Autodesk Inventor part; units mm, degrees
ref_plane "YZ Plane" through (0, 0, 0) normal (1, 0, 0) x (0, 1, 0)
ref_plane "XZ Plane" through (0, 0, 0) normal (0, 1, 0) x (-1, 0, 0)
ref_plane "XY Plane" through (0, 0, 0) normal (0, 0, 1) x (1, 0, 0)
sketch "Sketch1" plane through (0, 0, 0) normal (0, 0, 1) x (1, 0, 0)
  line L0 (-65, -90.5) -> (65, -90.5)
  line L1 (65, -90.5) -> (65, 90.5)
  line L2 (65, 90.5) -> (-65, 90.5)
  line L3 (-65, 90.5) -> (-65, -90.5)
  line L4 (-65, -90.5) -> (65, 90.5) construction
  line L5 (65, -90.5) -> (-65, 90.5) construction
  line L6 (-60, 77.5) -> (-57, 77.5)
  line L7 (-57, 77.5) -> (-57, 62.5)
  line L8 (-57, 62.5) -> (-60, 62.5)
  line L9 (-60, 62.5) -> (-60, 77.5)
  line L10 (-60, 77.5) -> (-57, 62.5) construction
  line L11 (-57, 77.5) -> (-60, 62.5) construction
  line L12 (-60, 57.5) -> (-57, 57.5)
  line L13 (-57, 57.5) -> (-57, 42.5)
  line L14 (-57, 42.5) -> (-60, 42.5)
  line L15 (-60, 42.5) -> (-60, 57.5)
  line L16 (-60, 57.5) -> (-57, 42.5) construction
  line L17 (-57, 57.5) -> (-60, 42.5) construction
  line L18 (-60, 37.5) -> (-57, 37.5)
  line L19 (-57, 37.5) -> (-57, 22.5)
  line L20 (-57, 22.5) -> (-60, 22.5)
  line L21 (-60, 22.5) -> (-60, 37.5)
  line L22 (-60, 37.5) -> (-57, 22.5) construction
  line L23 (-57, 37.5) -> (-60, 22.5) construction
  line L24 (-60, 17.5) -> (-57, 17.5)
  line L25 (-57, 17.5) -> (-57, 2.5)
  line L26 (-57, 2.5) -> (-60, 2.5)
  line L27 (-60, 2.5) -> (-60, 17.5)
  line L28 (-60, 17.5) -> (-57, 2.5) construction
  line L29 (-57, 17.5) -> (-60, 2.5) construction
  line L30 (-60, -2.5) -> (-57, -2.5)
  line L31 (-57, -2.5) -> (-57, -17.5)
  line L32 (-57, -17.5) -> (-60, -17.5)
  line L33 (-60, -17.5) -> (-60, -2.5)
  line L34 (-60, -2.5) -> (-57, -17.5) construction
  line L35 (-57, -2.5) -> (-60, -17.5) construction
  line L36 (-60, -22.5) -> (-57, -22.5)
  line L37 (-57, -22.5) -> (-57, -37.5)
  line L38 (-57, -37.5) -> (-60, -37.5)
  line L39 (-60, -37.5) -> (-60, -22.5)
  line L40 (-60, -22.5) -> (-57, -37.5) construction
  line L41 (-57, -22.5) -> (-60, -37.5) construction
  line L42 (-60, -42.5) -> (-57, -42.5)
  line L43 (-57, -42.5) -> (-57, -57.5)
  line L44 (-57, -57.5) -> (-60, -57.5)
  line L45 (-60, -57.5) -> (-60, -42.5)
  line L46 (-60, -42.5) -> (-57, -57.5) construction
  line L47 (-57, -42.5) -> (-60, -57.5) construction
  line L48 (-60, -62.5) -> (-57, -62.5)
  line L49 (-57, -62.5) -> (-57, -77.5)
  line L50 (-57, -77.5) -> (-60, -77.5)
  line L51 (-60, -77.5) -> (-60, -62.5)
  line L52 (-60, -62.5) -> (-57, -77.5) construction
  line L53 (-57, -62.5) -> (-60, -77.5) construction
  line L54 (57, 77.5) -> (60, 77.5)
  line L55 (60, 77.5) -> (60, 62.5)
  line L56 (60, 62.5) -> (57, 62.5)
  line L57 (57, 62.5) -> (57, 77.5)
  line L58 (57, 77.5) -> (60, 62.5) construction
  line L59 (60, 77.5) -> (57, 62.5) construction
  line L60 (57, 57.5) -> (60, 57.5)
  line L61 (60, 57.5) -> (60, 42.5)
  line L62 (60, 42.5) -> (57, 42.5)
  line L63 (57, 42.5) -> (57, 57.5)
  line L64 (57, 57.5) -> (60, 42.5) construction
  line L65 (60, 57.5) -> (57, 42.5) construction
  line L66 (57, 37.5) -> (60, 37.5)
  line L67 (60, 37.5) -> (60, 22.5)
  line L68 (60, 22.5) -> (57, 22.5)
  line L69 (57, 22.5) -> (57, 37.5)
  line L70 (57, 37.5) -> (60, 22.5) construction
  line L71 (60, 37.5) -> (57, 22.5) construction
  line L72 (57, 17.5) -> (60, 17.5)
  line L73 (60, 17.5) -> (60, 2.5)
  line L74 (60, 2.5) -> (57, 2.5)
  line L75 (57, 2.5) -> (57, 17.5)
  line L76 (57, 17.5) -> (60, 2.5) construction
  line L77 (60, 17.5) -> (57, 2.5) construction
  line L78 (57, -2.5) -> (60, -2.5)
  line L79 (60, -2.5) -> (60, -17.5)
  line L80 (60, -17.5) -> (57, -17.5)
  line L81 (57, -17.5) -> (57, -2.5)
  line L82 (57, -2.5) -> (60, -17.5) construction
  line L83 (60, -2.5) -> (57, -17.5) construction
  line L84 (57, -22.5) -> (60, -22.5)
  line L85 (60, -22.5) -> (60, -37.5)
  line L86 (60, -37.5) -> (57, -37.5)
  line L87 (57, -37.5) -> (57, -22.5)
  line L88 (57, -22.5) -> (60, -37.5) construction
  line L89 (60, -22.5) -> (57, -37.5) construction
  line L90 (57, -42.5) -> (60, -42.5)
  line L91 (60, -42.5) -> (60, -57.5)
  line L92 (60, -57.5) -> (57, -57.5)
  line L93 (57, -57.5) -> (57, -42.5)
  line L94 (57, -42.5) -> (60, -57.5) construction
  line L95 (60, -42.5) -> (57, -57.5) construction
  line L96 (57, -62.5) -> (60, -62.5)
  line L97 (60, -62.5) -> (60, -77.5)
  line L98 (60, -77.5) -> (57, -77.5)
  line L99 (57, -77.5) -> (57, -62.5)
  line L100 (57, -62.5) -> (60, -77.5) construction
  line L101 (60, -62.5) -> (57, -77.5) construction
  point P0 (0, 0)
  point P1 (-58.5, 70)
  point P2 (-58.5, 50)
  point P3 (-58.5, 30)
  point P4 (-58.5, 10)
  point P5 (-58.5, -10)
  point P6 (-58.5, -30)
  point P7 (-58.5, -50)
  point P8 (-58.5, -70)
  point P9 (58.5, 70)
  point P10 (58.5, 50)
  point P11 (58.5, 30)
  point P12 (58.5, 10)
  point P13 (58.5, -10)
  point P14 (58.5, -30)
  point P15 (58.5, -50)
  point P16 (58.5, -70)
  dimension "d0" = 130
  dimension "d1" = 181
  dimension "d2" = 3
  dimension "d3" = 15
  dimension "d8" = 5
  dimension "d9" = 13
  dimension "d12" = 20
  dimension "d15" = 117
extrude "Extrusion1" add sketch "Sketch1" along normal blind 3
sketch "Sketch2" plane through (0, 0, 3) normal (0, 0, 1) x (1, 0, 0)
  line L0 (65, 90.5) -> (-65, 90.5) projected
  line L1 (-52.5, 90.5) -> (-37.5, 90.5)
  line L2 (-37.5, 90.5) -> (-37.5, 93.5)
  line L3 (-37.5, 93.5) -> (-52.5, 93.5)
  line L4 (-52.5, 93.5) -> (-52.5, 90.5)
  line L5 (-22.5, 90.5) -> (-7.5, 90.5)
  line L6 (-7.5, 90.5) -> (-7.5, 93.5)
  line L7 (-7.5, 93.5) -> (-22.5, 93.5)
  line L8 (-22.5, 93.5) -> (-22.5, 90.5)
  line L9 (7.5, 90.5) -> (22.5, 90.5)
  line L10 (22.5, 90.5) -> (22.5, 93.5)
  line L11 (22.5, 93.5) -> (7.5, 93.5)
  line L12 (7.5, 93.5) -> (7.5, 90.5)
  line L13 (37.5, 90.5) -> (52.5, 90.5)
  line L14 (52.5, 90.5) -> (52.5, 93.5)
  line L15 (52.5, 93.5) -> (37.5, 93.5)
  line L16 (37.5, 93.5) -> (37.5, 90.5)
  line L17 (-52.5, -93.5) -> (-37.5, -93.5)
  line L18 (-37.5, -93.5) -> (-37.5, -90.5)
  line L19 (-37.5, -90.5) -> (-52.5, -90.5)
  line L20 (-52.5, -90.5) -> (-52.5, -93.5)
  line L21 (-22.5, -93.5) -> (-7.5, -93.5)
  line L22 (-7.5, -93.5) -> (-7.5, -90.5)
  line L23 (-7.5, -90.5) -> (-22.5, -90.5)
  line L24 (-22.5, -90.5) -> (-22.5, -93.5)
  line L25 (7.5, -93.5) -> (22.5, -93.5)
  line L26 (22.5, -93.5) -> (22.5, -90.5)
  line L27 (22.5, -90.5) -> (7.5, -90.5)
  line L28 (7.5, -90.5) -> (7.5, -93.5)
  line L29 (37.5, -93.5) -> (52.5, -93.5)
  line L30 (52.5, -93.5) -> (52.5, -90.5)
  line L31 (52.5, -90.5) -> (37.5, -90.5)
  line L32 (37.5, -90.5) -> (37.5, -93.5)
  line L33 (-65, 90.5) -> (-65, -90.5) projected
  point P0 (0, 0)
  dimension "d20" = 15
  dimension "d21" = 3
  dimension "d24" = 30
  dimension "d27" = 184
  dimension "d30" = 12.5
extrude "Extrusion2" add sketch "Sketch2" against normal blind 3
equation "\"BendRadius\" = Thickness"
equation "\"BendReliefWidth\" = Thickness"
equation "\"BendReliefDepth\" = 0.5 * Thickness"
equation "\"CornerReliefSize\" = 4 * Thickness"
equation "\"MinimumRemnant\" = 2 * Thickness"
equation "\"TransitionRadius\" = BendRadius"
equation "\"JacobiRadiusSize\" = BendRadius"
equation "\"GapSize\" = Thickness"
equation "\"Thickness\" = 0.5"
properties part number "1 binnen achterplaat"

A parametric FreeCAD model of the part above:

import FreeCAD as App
import Part
import Sketcher

V = App.Vector
Q = App.Units.Quantity


def add_polygon(sketch, points):
    """Adds a closed chain of lines whose ends are joined by coincident constraints."""
    first, n = sketch.GeometryCount, len(points)
    for a, b in zip(points, points[1:] + points[:1]):
        sketch.addGeometry(Part.LineSegment(App.Vector(*a, 0), App.Vector(*b, 0)), False)
    for i in range(n):
        sketch.addConstraint(Sketcher.Constraint("Coincident", first + i, 2, first + (i + 1) % n, 1))

doc = App.newDocument("Part")
body = doc.addObject("PartDesign::Body", "Body")

# Sketch on XY plane
sketch1 = body.newObject("Sketcher::SketchObject", "Sketch")
sketch1.AttachmentSupport = (doc.getObject("XY_Plane"), [""])
sketch1.MapMode = "FlatFace"
add_polygon(sketch1, [(-65, 90.5), (-65, -90.5), (65, -90.5), (65, 90.5)])  # lines 0-3
add_polygon(sketch1, [(-60, -77.5), (-60, -62.5), (-57, -62.5), (-57, -77.5)])  # lines 4-7
add_polygon(sketch1, [(-60, -57.5), (-60, -42.5), (-57, -42.5), (-57, -57.5)])  # lines 8-11
add_polygon(sketch1, [(-60, -37.5), (-60, -22.5), (-57, -22.5), (-57, -37.5)])  # lines 12-15
add_polygon(sketch1, [(-60, -17.5), (-60, -2.5), (-57, -2.5), (-57, -17.5)])  # lines 16-19
add_polygon(sketch1, [(57, -77.5), (57, -62.5), (60, -62.5), (60, -77.5)])  # lines 20-23
add_polygon(sketch1, [(57, -57.5), (57, -42.5), (60, -42.5), (60, -57.5)])  # lines 24-27
add_polygon(sketch1, [(57, -37.5), (57, -22.5), (60, -22.5), (60, -37.5)])  # lines 28-31
add_polygon(sketch1, [(57, -17.5), (57, -2.5), (60, -2.5), (60, -17.5)])  # lines 32-35
add_polygon(sketch1, [(-60, 2.5), (-60, 17.5), (-57, 17.5), (-57, 2.5)])  # lines 36-39
add_polygon(sketch1, [(-60, 22.5), (-60, 37.5), (-57, 37.5), (-57, 22.5)])  # lines 40-43
add_polygon(sketch1, [(-60, 42.5), (-60, 57.5), (-57, 57.5), (-57, 42.5)])  # lines 44-47
add_polygon(sketch1, [(-60, 62.5), (-60, 77.5), (-57, 77.5), (-57, 62.5)])  # lines 48-51
add_polygon(sketch1, [(57, 2.5), (57, 17.5), (60, 17.5), (60, 2.5)])  # lines 52-55
add_polygon(sketch1, [(57, 22.5), (57, 37.5), (60, 37.5), (60, 22.5)])  # lines 56-59
add_polygon(sketch1, [(57, 42.5), (57, 57.5), (60, 57.5), (60, 42.5)])  # lines 60-63
add_polygon(sketch1, [(57, 62.5), (57, 77.5), (60, 77.5), (60, 62.5)])  # lines 64-67
sketch1.addConstraint([
    Sketcher.Constraint("Vertical", 0),
    Sketcher.Constraint("Horizontal", 1),
    Sketcher.Constraint("Vertical", 2),
    Sketcher.Constraint("Horizontal", 3),
    Sketcher.Constraint("Vertical", 4),
    Sketcher.Constraint("Horizontal", 5),
    Sketcher.Constraint("Vertical", 6),
    Sketcher.Constraint("Horizontal", 7),
    Sketcher.Constraint("Vertical", 8),
    Sketcher.Constraint("Horizontal", 9),
    Sketcher.Constraint("Vertical", 10),
    Sketcher.Constraint("Horizontal", 11),
    Sketcher.Constraint("Vertical", 12),
    Sketcher.Constraint("Horizontal", 13),
    Sketcher.Constraint("Vertical", 14),
    Sketcher.Constraint("Horizontal", 15),
    Sketcher.Constraint("Vertical", 16),
    Sketcher.Constraint("Horizontal", 17),
    Sketcher.Constraint("Vertical", 18),
    Sketcher.Constraint("Horizontal", 19),
    Sketcher.Constraint("Vertical", 20),
    Sketcher.Constraint("Horizontal", 21),
    Sketcher.Constraint("Vertical", 22),
    Sketcher.Constraint("Horizontal", 23),
    Sketcher.Constraint("Vertical", 24),
    Sketcher.Constraint("Horizontal", 25),
    Sketcher.Constraint("Vertical", 26),
    Sketcher.Constraint("Horizontal", 27),
    Sketcher.Constraint("Vertical", 28),
    Sketcher.Constraint("Horizontal", 29),
    Sketcher.Constraint("Vertical", 30),
    Sketcher.Constraint("Horizontal", 31),
    Sketcher.Constraint("Vertical", 32),
    Sketcher.Constraint("Horizontal", 33),
    Sketcher.Constraint("Vertical", 34),
    Sketcher.Constraint("Horizontal", 35),
    Sketcher.Constraint("Vertical", 36),
    Sketcher.Constraint("Horizontal", 37),
    Sketcher.Constraint("Vertical", 38),
    Sketcher.Constraint("Horizontal", 39),
    Sketcher.Constraint("Vertical", 40),
    Sketcher.Constraint("Horizontal", 41),
    Sketcher.Constraint("Vertical", 42),
    Sketcher.Constraint("Horizontal", 43),
    Sketcher.Constraint("Vertical", 44),
    Sketcher.Constraint("Horizontal", 45),
    Sketcher.Constraint("Vertical", 46),
    Sketcher.Constraint("Horizontal", 47),
    Sketcher.Constraint("Vertical", 48),
    Sketcher.Constraint("Horizontal", 49),
    Sketcher.Constraint("Vertical", 50),
    Sketcher.Constraint("Horizontal", 51),
    Sketcher.Constraint("Vertical", 52),
    Sketcher.Constraint("Horizontal", 53),
    Sketcher.Constraint("Vertical", 54),
    Sketcher.Constraint("Horizontal", 55),
    Sketcher.Constraint("Vertical", 56),
    Sketcher.Constraint("Horizontal", 57),
    Sketcher.Constraint("Vertical", 58),
    Sketcher.Constraint("Horizontal", 59),
    Sketcher.Constraint("Vertical", 60),
    Sketcher.Constraint("Horizontal", 61),
    Sketcher.Constraint("Vertical", 62),
    Sketcher.Constraint("Horizontal", 63),
    Sketcher.Constraint("Vertical", 64),
    Sketcher.Constraint("Horizontal", 65),
    Sketcher.Constraint("Vertical", 66),
    Sketcher.Constraint("Horizontal", 67),
    Sketcher.Constraint("Symmetric", 0, 2, 2, 2, -1, 1),
    Sketcher.Constraint("Symmetric", 34, 2, 36, 2, -1, 1),
    Sketcher.Constraint("Symmetric", 32, 2, 38, 2, -1, 1),
    Sketcher.Constraint("Symmetric", 30, 2, 40, 2, -1, 1),
    Sketcher.Constraint("Symmetric", 28, 2, 42, 2, -1, 1),
    Sketcher.Constraint("Symmetric", 26, 2, 44, 2, -1, 1),
    Sketcher.Constraint("Symmetric", 24, 2, 46, 2, -1, 1),
    Sketcher.Constraint("Symmetric", 22, 2, 48, 2, -1, 1),
    Sketcher.Constraint("Symmetric", 20, 2, 50, 2, -1, 1),
    Sketcher.Constraint("Symmetric", 18, 2, 52, 2, -1, 1),
    Sketcher.Constraint("Symmetric", 16, 2, 54, 2, -1, 1),
    Sketcher.Constraint("Symmetric", 14, 2, 56, 2, -1, 1),
    Sketcher.Constraint("Symmetric", 12, 2, 58, 2, -1, 1),
    Sketcher.Constraint("Symmetric", 10, 2, 60, 2, -1, 1),
    Sketcher.Constraint("Symmetric", 8, 2, 62, 2, -1, 1),
    Sketcher.Constraint("Symmetric", 6, 2, 64, 2, -1, 1),
    Sketcher.Constraint("Symmetric", 4, 2, 66, 2, -1, 1),
    Sketcher.Constraint("Symmetric", 5, 2, 20, 2, -2),
    Sketcher.Constraint("Symmetric", 7, 2, 22, 2, -2),
    Sketcher.Constraint("Symmetric", 9, 2, 24, 2, -2),
    Sketcher.Constraint("Symmetric", 11, 2, 26, 2, -2),
    Sketcher.Constraint("Symmetric", 13, 2, 28, 2, -2),
    Sketcher.Constraint("Symmetric", 15, 2, 30, 2, -2),
    Sketcher.Constraint("Symmetric", 17, 2, 32, 2, -2),
    Sketcher.Constraint("Symmetric", 19, 2, 34, 2, -2),
    Sketcher.Constraint("Vertical", 7, 2, 8, 2),
    Sketcher.Constraint("Vertical", 6, 2, 9, 2),
    Sketcher.Constraint("Vertical", 11, 2, 12, 2),
    Sketcher.Constraint("Vertical", 10, 2, 13, 2),
    Sketcher.Constraint("Vertical", 15, 2, 16, 2),
    Sketcher.Constraint("Vertical", 14, 2, 17, 2),
    Sketcher.Constraint("Equal", 6, 8),
    Sketcher.Constraint("Equal", 10, 12),
    Sketcher.Constraint("Equal", 14, 16),
    Sketcher.Constraint("DistanceX", 1, 1, 1, 2, Q("130 mm")),
    Sketcher.Constraint("DistanceX", 5, 1, 5, 2, Q("3 mm")),
    Sketcher.Constraint("DistanceY", 0, 2, 0, 1, Q("181 mm")),
    Sketcher.Constraint("DistanceY", 4, 1, 4, 2, Q("15 mm")),
    Sketcher.Constraint("DistanceX", 4, 2, -1, 1, Q("60 mm")),
    Sketcher.Constraint("DistanceY", 4, 2, -1, 1, Q("62.5 mm")),
    Sketcher.Constraint("DistanceY", 8, 2, -1, 1, Q("42.5 mm")),
    Sketcher.Constraint("DistanceY", 12, 2, -1, 1, Q("22.5 mm")),
    Sketcher.Constraint("DistanceY", 16, 2, -1, 1, Q("2.5 mm")),
])
pad1 = body.newObject("PartDesign::Pad", "Pad")
pad1.Profile = sketch1
pad1.Length = 3

# Sketch on XY plane
sketch2 = body.newObject("Sketcher::SketchObject", "Sketch001")
sketch2.AttachmentSupport = (doc.getObject("XY_Plane"), [""])
sketch2.MapMode = "FlatFace"
sketch2.AttachmentOffset = App.Placement(V(0, 0, 3), App.Rotation())
add_polygon(sketch2, [(-52.5, 90.5), (-37.5, 90.5), (-37.5, 93.5), (-52.5, 93.5)])  # lines 0-3
add_polygon(sketch2, [(-22.5, 90.5), (-7.5, 90.5), (-7.5, 93.5), (-22.5, 93.5)])  # lines 4-7
add_polygon(sketch2, [(7.5, 90.5), (22.5, 90.5), (22.5, 93.5), (7.5, 93.5)])  # lines 8-11
add_polygon(sketch2, [(37.5, 90.5), (52.5, 90.5), (52.5, 93.5), (37.5, 93.5)])  # lines 12-15
add_polygon(sketch2, [(-52.5, -90.5), (-52.5, -93.5), (-37.5, -93.5), (-37.5, -90.5)])  # lines 16-19
add_polygon(sketch2, [(-22.5, -90.5), (-22.5, -93.5), (-7.5, -93.5), (-7.5, -90.5)])  # lines 20-23
add_polygon(sketch2, [(7.5, -90.5), (7.5, -93.5), (22.5, -93.5), (22.5, -90.5)])  # lines 24-27
add_polygon(sketch2, [(37.5, -90.5), (37.5, -93.5), (52.5, -93.5), (52.5, -90.5)])  # lines 28-31
sketch2.addConstraint([
    Sketcher.Constraint("Horizontal", 0),
    Sketcher.Constraint("Vertical", 1),
    Sketcher.Constraint("Horizontal", 2),
    Sketcher.Constraint("Vertical", 3),
    Sketcher.Constraint("Horizontal", 4),
    Sketcher.Constraint("Vertical", 5),
    Sketcher.Constraint("Horizontal", 6),
    Sketcher.Constraint("Vertical", 7),
    Sketcher.Constraint("Horizontal", 8),
    Sketcher.Constraint("Vertical", 9),
    Sketcher.Constraint("Horizontal", 10),
    Sketcher.Constraint("Vertical", 11),
    Sketcher.Constraint("Horizontal", 12),
    Sketcher.Constraint("Vertical", 13),
    Sketcher.Constraint("Horizontal", 14),
    Sketcher.Constraint("Vertical", 15),
    Sketcher.Constraint("Vertical", 16),
    Sketcher.Constraint("Horizontal", 17),
    Sketcher.Constraint("Vertical", 18),
    Sketcher.Constraint("Horizontal", 19),
    Sketcher.Constraint("Vertical", 20),
    Sketcher.Constraint("Horizontal", 21),
    Sketcher.Constraint("Vertical", 22),
    Sketcher.Constraint("Horizontal", 23),
    Sketcher.Constraint("Vertical", 24),
    Sketcher.Constraint("Horizontal", 25),
    Sketcher.Constraint("Vertical", 26),
    Sketcher.Constraint("Horizontal", 27),
    Sketcher.Constraint("Vertical", 28),
    Sketcher.Constraint("Horizontal", 29),
    Sketcher.Constraint("Vertical", 30),
    Sketcher.Constraint("Horizontal", 31),
    Sketcher.Constraint("Symmetric", 13, 2, 16, 2, -1, 1),
    Sketcher.Constraint("Symmetric", 15, 2, 18, 2, -1, 1),
    Sketcher.Constraint("Symmetric", 9, 2, 20, 2, -1, 1),
    Sketcher.Constraint("Symmetric", 11, 2, 22, 2, -1, 1),
    Sketcher.Constraint("Symmetric", 5, 2, 24, 2, -1, 1),
    Sketcher.Constraint("Symmetric", 7, 2, 26, 2, -1, 1),
    Sketcher.Constraint("Symmetric", 1, 2, 28, 2, -1, 1),
    Sketcher.Constraint("Symmetric", 3, 2, 30, 2, -1, 1),
    Sketcher.Constraint("Symmetric", 7, 2, 8, 2, -2),
    Sketcher.Constraint("Symmetric", 5, 2, 10, 2, -2),
    Sketcher.Constraint("Symmetric", 3, 2, 12, 2, -2),
    Sketcher.Constraint("Symmetric", 1, 2, 14, 2, -2),
    Sketcher.Constraint("Horizontal", 3, 2, 4, 2),
    Sketcher.Constraint("Horizontal", 2, 2, 5, 2),
    Sketcher.Constraint("Equal", 2, 4),
    Sketcher.Constraint("DistanceX", 0, 1, 0, 2, Q("15 mm")),
    Sketcher.Constraint("DistanceY", 1, 1, 1, 2, Q("3 mm")),
    Sketcher.Constraint("DistanceX", 0, 2, 4, 2, Q("30 mm")),
    Sketcher.Constraint("DistanceX", 4, 2, 8, 2, Q("30 mm")),
    Sketcher.Constraint("DistanceY", 16, 2, 3, 2, Q("184 mm")),
])
pad2 = body.newObject("PartDesign::Pad", "Pad001")
pad2.Profile = sketch2
pad2.Length = 3
pad2.Reversed = True

doc.recompute()
